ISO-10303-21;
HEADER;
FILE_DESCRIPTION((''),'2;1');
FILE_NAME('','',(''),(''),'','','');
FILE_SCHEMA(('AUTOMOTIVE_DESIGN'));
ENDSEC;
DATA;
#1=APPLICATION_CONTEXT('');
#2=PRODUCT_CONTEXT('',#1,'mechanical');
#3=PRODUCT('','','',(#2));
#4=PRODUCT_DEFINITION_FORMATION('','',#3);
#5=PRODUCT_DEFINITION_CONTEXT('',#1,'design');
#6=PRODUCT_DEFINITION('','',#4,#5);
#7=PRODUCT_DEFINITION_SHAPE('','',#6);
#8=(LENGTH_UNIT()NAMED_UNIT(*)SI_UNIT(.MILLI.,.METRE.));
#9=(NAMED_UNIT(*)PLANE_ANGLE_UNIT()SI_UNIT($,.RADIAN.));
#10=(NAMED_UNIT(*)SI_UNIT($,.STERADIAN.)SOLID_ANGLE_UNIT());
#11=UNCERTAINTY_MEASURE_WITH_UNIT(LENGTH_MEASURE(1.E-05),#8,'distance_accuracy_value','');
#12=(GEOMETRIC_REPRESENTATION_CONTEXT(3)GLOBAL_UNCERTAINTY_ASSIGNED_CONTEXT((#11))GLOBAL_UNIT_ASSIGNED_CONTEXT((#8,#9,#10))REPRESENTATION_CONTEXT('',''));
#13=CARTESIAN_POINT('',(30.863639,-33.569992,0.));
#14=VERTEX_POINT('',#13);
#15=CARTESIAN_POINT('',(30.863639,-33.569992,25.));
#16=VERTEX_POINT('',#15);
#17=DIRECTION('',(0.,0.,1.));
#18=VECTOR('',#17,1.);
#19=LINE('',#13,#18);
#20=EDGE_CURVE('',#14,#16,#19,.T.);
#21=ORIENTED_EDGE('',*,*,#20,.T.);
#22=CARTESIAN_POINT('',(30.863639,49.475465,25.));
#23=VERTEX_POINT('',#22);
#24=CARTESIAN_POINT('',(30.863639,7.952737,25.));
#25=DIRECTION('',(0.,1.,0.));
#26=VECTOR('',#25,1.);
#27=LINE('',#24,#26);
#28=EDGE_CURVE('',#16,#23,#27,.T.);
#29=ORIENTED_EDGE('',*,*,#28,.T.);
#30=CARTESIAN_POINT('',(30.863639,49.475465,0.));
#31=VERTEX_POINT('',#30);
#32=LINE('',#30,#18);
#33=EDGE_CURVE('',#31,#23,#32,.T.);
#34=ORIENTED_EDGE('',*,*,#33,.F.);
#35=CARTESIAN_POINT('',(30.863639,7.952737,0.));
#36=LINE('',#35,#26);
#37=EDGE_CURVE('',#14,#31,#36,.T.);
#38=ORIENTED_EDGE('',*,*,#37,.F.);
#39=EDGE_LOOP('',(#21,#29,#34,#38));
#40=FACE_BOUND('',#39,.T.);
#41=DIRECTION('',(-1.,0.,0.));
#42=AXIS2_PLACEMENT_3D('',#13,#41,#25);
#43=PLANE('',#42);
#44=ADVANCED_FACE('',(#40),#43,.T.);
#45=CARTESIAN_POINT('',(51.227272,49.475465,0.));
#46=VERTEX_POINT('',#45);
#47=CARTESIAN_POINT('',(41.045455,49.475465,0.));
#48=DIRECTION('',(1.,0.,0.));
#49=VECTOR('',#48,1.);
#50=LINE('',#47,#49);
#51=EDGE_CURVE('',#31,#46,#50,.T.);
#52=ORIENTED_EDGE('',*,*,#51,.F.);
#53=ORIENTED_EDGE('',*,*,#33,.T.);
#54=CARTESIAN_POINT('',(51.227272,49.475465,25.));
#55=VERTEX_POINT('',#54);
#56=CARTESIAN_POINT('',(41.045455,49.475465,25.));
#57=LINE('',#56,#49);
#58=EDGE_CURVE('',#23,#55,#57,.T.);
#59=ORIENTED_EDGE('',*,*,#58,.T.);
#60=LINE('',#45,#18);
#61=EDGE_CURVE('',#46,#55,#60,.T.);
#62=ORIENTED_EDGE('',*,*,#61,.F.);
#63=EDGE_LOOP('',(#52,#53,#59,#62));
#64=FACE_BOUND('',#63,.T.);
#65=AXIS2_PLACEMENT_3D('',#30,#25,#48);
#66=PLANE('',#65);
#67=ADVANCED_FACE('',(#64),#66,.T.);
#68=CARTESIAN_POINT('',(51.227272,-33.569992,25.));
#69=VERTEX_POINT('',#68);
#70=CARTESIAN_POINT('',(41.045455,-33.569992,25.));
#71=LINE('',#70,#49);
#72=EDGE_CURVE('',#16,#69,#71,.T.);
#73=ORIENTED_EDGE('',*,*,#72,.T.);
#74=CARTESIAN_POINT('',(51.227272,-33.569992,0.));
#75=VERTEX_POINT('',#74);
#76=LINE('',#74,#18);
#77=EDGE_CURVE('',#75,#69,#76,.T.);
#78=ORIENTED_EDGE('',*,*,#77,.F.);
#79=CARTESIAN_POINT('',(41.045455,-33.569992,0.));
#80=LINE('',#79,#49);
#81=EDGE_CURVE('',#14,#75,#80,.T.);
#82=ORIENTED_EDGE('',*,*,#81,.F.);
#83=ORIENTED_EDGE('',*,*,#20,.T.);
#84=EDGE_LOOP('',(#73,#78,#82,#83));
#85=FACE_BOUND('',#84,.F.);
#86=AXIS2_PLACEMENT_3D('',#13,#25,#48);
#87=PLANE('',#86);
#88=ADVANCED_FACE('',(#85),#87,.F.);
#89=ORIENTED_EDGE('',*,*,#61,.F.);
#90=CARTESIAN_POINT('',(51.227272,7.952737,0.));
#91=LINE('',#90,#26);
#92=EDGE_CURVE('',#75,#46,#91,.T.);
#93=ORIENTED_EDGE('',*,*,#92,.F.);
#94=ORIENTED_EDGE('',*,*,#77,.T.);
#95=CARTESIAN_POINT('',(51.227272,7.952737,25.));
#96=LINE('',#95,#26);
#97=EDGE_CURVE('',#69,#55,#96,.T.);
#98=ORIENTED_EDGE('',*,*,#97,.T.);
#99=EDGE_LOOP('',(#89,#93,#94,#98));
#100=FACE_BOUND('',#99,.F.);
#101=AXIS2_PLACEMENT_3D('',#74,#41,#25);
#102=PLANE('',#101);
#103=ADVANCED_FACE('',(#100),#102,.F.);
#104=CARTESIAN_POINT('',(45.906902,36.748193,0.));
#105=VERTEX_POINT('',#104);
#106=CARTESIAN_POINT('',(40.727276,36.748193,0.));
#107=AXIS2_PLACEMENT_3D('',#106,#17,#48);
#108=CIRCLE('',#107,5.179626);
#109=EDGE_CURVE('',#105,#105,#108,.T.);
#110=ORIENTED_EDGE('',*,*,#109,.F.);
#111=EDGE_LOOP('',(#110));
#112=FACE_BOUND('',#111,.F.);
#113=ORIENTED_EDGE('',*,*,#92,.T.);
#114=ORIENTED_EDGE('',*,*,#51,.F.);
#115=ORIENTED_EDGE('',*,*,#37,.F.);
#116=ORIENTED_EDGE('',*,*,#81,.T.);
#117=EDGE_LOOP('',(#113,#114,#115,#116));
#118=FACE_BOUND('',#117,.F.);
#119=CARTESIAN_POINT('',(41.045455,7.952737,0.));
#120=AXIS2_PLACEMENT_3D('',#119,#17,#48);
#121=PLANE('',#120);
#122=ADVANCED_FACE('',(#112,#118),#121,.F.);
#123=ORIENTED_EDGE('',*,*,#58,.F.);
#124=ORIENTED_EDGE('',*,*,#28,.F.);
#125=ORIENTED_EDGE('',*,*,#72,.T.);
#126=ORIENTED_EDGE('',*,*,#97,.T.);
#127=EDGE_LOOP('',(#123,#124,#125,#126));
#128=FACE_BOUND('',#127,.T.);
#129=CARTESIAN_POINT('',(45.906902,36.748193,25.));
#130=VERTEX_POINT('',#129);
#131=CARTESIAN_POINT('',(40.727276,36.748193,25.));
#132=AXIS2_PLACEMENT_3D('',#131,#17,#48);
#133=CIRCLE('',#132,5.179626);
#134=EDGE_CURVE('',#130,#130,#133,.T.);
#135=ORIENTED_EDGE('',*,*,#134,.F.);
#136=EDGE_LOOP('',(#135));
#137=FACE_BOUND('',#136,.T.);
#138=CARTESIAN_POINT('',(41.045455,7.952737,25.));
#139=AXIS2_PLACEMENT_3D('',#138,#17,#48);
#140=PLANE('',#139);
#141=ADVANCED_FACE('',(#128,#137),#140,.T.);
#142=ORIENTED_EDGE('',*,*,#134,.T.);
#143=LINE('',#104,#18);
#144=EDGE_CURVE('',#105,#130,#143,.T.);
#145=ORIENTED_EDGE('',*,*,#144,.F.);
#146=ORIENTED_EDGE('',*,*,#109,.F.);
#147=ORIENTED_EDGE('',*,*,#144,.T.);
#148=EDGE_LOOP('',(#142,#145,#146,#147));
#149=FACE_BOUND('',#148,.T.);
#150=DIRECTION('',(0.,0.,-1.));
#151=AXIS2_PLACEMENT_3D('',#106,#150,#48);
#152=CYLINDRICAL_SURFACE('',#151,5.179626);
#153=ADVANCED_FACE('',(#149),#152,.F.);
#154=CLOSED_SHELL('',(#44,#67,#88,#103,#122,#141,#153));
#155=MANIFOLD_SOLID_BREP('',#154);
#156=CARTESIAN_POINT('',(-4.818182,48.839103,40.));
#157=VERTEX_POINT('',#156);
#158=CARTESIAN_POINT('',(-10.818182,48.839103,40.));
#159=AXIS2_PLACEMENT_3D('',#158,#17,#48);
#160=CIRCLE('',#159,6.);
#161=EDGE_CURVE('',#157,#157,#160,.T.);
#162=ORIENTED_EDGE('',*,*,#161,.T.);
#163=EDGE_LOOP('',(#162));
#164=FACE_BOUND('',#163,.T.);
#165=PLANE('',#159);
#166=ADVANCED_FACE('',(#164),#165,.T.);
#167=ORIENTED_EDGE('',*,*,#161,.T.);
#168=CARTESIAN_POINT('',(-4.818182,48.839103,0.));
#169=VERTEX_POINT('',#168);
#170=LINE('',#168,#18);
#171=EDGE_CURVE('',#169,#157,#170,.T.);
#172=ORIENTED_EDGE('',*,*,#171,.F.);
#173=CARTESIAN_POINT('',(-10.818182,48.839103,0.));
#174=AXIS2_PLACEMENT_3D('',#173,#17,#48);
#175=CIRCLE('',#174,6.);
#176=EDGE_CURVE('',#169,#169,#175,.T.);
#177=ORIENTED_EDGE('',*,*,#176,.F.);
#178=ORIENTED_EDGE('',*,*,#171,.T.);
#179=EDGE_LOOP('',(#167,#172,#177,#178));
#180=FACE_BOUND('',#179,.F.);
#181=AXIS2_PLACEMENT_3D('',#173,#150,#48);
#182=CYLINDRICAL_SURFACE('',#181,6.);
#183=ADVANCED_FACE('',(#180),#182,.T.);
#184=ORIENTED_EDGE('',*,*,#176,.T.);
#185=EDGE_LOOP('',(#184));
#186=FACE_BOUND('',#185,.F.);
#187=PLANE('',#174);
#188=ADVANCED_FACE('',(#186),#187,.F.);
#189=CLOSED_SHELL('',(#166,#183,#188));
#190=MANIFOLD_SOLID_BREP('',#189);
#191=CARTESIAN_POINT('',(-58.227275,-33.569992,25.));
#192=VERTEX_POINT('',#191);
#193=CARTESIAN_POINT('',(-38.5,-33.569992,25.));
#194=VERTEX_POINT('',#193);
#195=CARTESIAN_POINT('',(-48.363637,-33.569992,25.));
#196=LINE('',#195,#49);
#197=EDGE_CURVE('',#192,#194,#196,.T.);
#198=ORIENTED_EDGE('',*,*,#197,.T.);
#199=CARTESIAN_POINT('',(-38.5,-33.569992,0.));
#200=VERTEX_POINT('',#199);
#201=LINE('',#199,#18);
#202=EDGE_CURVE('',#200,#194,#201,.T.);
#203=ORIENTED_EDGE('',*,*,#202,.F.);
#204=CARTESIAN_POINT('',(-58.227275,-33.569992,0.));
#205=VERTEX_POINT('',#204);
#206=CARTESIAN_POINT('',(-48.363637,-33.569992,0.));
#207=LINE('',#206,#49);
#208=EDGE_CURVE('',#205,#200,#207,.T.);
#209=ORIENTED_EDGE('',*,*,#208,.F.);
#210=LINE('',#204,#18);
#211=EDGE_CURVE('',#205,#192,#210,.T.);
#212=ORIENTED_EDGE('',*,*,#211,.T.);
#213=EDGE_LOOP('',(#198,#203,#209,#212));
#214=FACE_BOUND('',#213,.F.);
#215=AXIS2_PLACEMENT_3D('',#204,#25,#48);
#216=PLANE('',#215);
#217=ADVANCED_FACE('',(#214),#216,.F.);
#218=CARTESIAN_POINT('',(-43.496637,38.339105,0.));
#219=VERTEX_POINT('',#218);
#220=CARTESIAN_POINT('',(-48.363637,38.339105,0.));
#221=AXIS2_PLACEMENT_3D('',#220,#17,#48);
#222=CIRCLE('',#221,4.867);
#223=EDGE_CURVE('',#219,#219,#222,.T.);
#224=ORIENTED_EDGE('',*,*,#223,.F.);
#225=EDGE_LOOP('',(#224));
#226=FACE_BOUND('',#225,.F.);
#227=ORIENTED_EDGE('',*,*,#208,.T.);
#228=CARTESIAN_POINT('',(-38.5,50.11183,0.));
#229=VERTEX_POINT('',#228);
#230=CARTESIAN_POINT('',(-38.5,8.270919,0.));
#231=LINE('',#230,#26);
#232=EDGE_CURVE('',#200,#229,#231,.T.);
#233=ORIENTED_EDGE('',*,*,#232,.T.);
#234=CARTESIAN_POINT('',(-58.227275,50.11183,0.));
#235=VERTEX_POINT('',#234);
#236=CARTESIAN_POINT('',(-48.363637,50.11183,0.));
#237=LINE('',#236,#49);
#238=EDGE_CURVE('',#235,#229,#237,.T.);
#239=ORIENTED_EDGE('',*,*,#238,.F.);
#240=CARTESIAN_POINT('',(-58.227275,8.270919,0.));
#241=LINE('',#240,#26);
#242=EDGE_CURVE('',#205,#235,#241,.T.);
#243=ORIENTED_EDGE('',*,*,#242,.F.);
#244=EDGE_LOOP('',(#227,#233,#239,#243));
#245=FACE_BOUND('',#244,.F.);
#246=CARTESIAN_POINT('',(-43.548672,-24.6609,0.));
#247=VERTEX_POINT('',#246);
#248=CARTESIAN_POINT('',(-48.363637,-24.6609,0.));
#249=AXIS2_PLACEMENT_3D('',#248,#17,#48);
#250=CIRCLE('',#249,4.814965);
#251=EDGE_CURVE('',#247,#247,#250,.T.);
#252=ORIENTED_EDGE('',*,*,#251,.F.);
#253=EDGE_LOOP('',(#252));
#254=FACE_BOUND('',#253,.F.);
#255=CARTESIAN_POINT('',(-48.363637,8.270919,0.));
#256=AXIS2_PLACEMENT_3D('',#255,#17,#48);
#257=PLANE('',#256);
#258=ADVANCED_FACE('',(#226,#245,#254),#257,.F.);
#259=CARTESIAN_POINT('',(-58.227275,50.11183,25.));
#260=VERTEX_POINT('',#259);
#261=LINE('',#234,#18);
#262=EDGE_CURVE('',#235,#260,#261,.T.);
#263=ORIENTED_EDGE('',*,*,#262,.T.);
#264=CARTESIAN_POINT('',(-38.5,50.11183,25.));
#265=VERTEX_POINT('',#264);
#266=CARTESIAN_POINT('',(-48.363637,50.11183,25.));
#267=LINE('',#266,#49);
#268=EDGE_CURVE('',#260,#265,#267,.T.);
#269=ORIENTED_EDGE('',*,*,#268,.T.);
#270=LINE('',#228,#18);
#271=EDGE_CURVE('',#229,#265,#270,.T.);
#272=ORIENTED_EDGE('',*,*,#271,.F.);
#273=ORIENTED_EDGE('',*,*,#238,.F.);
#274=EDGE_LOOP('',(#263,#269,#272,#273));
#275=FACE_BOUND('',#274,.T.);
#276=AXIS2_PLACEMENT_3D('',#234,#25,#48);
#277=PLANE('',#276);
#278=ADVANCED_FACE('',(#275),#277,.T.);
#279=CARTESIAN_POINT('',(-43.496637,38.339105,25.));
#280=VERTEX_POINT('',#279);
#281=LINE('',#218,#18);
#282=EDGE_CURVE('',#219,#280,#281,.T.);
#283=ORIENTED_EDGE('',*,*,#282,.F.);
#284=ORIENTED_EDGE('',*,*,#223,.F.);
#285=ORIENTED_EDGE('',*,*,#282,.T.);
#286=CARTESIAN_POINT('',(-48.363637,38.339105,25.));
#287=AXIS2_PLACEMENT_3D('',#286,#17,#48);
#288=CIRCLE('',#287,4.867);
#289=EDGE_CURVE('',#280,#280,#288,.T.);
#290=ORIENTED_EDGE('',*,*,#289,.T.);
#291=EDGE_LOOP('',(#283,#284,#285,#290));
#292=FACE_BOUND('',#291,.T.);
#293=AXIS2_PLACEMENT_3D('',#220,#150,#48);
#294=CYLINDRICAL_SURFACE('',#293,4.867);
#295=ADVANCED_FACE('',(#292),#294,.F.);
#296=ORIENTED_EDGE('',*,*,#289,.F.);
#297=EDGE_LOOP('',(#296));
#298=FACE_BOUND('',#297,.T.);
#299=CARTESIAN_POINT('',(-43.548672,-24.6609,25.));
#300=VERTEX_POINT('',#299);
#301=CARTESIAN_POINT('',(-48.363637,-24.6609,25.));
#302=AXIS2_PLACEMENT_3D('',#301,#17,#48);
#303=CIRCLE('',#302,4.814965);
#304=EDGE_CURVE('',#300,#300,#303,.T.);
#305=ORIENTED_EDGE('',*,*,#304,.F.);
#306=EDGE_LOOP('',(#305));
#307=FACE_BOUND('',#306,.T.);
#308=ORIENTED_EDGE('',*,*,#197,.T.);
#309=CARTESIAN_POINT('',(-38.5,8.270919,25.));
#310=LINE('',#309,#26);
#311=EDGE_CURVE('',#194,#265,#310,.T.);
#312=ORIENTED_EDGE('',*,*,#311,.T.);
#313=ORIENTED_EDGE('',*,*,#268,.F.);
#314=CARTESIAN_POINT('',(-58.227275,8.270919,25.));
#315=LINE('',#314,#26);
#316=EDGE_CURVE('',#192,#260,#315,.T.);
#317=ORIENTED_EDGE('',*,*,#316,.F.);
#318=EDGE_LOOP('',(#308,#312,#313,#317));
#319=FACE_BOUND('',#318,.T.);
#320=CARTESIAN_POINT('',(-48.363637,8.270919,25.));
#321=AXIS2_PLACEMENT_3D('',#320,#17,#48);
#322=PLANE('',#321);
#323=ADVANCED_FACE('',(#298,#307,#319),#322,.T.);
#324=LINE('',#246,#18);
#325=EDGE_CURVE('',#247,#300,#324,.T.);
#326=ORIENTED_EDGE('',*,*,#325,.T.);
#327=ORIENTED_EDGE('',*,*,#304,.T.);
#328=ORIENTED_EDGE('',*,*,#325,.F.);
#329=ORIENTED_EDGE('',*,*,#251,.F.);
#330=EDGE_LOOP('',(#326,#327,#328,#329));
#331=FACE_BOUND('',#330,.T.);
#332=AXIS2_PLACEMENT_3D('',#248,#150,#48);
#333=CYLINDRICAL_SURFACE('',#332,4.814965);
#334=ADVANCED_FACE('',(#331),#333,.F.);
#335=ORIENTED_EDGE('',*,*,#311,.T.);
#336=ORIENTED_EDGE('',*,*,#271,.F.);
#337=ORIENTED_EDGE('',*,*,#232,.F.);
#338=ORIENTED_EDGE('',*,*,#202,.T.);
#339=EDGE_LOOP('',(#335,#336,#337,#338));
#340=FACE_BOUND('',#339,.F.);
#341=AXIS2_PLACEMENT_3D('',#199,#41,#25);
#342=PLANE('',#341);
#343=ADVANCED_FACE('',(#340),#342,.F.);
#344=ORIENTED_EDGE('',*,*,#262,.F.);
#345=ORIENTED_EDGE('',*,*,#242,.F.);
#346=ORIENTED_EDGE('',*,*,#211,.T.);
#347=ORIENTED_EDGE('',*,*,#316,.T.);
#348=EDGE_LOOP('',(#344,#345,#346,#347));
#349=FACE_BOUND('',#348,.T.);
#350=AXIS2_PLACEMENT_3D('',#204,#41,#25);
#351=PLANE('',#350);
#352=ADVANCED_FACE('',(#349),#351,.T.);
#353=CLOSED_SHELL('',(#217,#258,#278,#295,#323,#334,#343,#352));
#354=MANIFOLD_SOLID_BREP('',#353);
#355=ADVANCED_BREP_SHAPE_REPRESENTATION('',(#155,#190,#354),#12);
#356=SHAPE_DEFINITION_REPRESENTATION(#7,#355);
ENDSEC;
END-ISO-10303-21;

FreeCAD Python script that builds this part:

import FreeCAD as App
import Part
import Sketcher

doc = App.newDocument("Part")
body = doc.addObject("PartDesign::Body", "Body")

sketch1 = body.newObject("Sketcher::SketchObject", "Sketch")
sketch1.AttachmentSupport = (doc.getObject("XY_Plane"), [""])
sketch1.MapMode = "FlatFace"
sketch1.addGeometry(Part.LineSegment(App.Vector(31, 49, 0), App.Vector(31, -34, 0)), False)
sketch1.addGeometry(Part.LineSegment(App.Vector(31, -34, 0), App.Vector(51, -34, 0)), False)
sketch1.addGeometry(Part.LineSegment(App.Vector(51, -34, 0), App.Vector(51, 49, 0)), False)
sketch1.addGeometry(Part.LineSegment(App.Vector(51, 49, 0), App.Vector(31, 49, 0)), False)
sketch1.addGeometry(Part.Circle(App.Vector(41, 37, 0), App.Vector(0, 0, 1), 5), False)
sketch1.addConstraint(Sketcher.Constraint("Coincident", 0, 2, 1, 1))
sketch1.addConstraint(Sketcher.Constraint("Coincident", 1, 2, 2, 1))
sketch1.addConstraint(Sketcher.Constraint("Coincident", 2, 2, 3, 1))
sketch1.addConstraint(Sketcher.Constraint("Coincident", 3, 2, 0, 1))
sketch1.addConstraint(Sketcher.Constraint("Vertical", 0))
sketch1.addConstraint(Sketcher.Constraint("Horizontal", 1))
sketch1.addConstraint(Sketcher.Constraint("Vertical", 2))
sketch1.addConstraint(Sketcher.Constraint("Horizontal", 3))
sketch1.addConstraint(Sketcher.Constraint("Diameter", 4, 10.359252))
sketch1.addConstraint(Sketcher.Constraint("DistanceX", 1, 1, 1, 2, 20.363633))
sketch1.addConstraint(Sketcher.Constraint("DistanceY", 0, 2, 0, 1, 83.045457))
sketch1.addConstraint(Sketcher.Constraint("DistanceX", -1, 1, 0, 2, 30.863639))
sketch1.addConstraint(Sketcher.Constraint("DistanceY", 0, 2, -1, 1, 33.569992))
sketch1.addConstraint(Sketcher.Constraint("DistanceY", 4, 3, 2, 2, 12.727272))
sketch1.addConstraint(Sketcher.Constraint("DistanceX", -1, 1, 4, 3, 40.727276))
pad1 = body.newObject("PartDesign::Pad", "Pad")
pad1.Profile = sketch1
pad1.Length = 25

sketch2 = body.newObject("Sketcher::SketchObject", "Sketch001")
sketch2.AttachmentSupport = (doc.getObject("XY_Plane"), [""])
sketch2.MapMode = "FlatFace"
sketch2.addGeometry(Part.Circle(App.Vector(-48.4, 38.3, 0), App.Vector(0, 0, 1), 4.9), False)
sketch2.addGeometry(Part.Circle(App.Vector(-48.4, -24.7, 0), App.Vector(0, 0, 1), 4.8), False)
sketch2.addGeometry(Part.Circle(App.Vector(40.7, 36.7, 0), App.Vector(0, 0, 1), 5.2), False)
sketch2.addConstraint(Sketcher.Constraint("Vertical", 0, 3, 1, 3))
sketch2.addConstraint(Sketcher.Constraint("Diameter", 0, 9.734))
sketch2.addConstraint(Sketcher.Constraint("Diameter", 1, 9.629931))
sketch2.addConstraint(Sketcher.Constraint("Diameter", 2, 10.359252))
sketch2.addConstraint(Sketcher.Constraint("DistanceY", 1, 3, -1, 1, 24.6609))
sketch2.addConstraint(Sketcher.Constraint("DistanceY", 2, 3, 0, 3, 1.590911))
sketch2.addConstraint(Sketcher.Constraint("DistanceX", 0, 3, -1, 1, 48.363637))
sketch2.addConstraint(Sketcher.Constraint("DistanceY", -1, 1, 0, 3, 38.339105))
sketch2.addConstraint(Sketcher.Constraint("DistanceX", -1, 1, 2, 3, 40.727276))
pocket1 = body.newObject("PartDesign::Pocket", "Pocket")
pocket1.Profile = sketch2
pocket1.Length = 50
pocket1.Midplane = True
body2 = doc.addObject("PartDesign::Body", "Body001")

sketch3 = body2.newObject("Sketcher::SketchObject", "Sketch002")
sketch3.AttachmentSupport = (doc.getObject("XY_Plane001"), [""])
sketch3.MapMode = "FlatFace"
sketch3.addGeometry(Part.LineSegment(App.Vector(-58.2, 50.1, 0), App.Vector(-58.2, -33.6, 0)), False)
sketch3.addGeometry(Part.LineSegment(App.Vector(-58.2, -33.6, 0), App.Vector(-38.5, -33.6, 0)), False)
sketch3.addGeometry(Part.LineSegment(App.Vector(-38.5, -33.6, 0), App.Vector(-38.5, 50.1, 0)), False)
sketch3.addGeometry(Part.LineSegment(App.Vector(-38.5, 50.1, 0), App.Vector(-58.2, 50.1, 0)), False)
sketch3.addGeometry(Part.Circle(App.Vector(-48.4, -24.7, 0), App.Vector(0, 0, 1), 4.8), False)
sketch3.addGeometry(Part.Circle(App.Vector(-48.4, 38.3, 0), App.Vector(0, 0, 1), 4.9), False)
sketch3.addConstraint(Sketcher.Constraint("Coincident", 0, 2, 1, 1))
sketch3.addConstraint(Sketcher.Constraint("Coincident", 1, 2, 2, 1))
sketch3.addConstraint(Sketcher.Constraint("Coincident", 2, 2, 3, 1))
sketch3.addConstraint(Sketcher.Constraint("Coincident", 3, 2, 0, 1))
sketch3.addConstraint(Sketcher.Constraint("Vertical", 0))
sketch3.addConstraint(Sketcher.Constraint("Horizontal", 1))
sketch3.addConstraint(Sketcher.Constraint("Vertical", 2))
sketch3.addConstraint(Sketcher.Constraint("Horizontal", 3))
sketch3.addConstraint(Sketcher.Constraint("Vertical", 4, 3, 5, 3))
sketch3.addConstraint(Sketcher.Constraint("Diameter", 5, 9.734))
sketch3.addConstraint(Sketcher.Constraint("DistanceX", 1, 2, -1, 1, 38.5))
sketch3.addConstraint(Sketcher.Constraint("Diameter", 4, 9.629931))
sketch3.addConstraint(Sketcher.Constraint("DistanceY", 0, 2, 0, 1, 83.681822))
sketch3.addConstraint(Sketcher.Constraint("DistanceY", 4, 3, -1, 1, 24.6609))
sketch3.addConstraint(Sketcher.Constraint("DistanceX", 1, 1, 1, 2, 19.727275))
sketch3.addConstraint(Sketcher.Constraint("DistanceY", 0, 2, -1, 1, 33.569992))
sketch3.addConstraint(Sketcher.Constraint("DistanceX", 4, 3, -1, 1, 48.363637))
sketch3.addConstraint(Sketcher.Constraint("DistanceY", -1, 1, 5, 3, 38.339105))
pad2 = body2.newObject("PartDesign::Pad", "Pad001")
pad2.Profile = sketch3
pad2.Length = 25
body3 = doc.addObject("PartDesign::Body", "Body002")

sketch4 = body3.newObject("Sketcher::SketchObject", "Sketch003")
sketch4.AttachmentSupport = (doc.getObject("XY_Plane002"), [""])
sketch4.MapMode = "FlatFace"
sketch4.addGeometry(Part.Circle(App.Vector(-11, 49, 0), App.Vector(0, 0, 1), 6), False)
sketch4.addConstraint(Sketcher.Constraint("Diameter", 0, 12.0))
sketch4.addConstraint(Sketcher.Constraint("DistanceX", 0, 3, -1, 1, 10.818182))
sketch4.addConstraint(Sketcher.Constraint("DistanceY", -1, 1, 0, 3, 48.839103))
pad3 = body3.newObject("PartDesign::Pad", "Pad002")
pad3.Profile = sketch4
pad3.Length = 40

doc.recompute()
